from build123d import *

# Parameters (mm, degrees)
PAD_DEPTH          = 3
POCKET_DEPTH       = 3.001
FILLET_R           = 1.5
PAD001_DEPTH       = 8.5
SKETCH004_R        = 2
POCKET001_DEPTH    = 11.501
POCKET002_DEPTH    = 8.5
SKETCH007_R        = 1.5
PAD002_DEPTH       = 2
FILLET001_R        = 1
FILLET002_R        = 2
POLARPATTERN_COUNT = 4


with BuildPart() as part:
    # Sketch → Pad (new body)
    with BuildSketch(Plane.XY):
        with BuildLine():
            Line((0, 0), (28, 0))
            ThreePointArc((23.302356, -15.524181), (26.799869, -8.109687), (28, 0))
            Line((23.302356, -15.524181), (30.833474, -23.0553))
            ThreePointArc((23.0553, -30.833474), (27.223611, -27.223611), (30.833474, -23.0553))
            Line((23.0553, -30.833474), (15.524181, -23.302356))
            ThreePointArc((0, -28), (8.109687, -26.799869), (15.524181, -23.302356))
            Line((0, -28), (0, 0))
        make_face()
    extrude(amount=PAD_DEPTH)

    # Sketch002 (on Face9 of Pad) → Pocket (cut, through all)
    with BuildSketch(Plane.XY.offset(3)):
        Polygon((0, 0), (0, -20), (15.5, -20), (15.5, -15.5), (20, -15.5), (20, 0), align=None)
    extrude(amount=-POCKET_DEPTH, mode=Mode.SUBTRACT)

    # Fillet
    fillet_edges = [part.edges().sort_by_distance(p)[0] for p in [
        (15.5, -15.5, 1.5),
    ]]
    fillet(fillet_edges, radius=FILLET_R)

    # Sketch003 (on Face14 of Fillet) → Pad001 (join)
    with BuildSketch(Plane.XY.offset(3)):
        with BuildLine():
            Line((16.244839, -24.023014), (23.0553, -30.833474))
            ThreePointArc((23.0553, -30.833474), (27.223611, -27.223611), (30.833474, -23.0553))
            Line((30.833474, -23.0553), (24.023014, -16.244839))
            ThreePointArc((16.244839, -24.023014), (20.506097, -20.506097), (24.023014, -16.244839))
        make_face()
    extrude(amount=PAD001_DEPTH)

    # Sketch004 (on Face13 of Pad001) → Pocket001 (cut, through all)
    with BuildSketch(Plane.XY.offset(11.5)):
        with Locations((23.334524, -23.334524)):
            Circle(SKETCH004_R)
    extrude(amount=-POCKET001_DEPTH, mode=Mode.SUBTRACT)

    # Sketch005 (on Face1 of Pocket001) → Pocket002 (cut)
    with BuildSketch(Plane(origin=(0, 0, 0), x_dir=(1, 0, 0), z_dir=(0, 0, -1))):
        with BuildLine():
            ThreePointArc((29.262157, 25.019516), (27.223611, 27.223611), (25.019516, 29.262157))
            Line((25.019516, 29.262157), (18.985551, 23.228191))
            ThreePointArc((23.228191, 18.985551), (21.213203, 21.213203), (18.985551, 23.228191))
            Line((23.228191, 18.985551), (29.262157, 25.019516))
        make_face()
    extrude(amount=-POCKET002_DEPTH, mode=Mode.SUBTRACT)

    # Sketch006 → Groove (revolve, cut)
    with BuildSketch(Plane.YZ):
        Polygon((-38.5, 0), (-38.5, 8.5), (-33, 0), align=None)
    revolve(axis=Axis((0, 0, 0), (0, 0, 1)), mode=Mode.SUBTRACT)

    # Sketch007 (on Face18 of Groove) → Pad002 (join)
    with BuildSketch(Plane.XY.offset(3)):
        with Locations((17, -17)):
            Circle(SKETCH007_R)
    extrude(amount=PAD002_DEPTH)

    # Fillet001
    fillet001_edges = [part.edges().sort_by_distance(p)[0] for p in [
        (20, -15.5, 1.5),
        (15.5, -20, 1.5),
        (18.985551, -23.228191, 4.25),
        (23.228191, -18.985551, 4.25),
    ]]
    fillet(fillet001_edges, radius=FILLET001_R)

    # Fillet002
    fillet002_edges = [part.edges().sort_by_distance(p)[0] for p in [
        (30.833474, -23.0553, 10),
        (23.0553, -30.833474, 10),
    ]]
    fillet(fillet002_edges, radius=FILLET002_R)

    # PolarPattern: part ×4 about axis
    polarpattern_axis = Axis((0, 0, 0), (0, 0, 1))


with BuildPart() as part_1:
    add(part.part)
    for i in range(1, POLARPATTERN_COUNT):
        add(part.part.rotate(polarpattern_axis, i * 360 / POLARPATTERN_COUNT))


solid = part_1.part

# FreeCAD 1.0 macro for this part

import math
import FreeCAD as App
import Part
import Sketcher
Q = App.Units.Quantity


def edges_at(feature, points):
    """Names of the edges that pass closest to the given points."""
    edges = feature.Shape.Edges
    near = lambda p: min(range(len(edges)), key=lambda i: edges[i].distToShape(Part.Vertex(*p))[0])
    return sorted({f"Edge{near(p) + 1}" for p in points})

doc = App.newDocument("Part")
body = doc.addObject("PartDesign::Body", "Body")

# Sketch on XY plane
sketch1 = body.newObject("Sketcher::SketchObject", "Sketch")
sketch1.AttachmentSupport = (doc.getObject("XY_Plane"), [""])
sketch1.MapMode = "FlatFace"
sketch1.addGeometry([
    Part.LineSegment(App.Vector(28, 0, 0), App.Vector(0, 0, 0)),  # 0
    Part.LineSegment(App.Vector(0, 0, 0), App.Vector(0, -28, 0)),  # 1
    Part.ArcOfCircle(Part.Circle(App.Vector(0, 0, 0), App.Vector(0, 0, 1), 28), math.radians(-90), math.radians(-56)),  # 2
    Part.LineSegment(App.Vector(16, -23, 0), App.Vector(23, -31, 0)),  # 3
    Part.ArcOfCircle(Part.Circle(App.Vector(0, 0, 0), App.Vector(0, 0, 1), 38), math.radians(-53.21), math.radians(-36.79)),  # 4
    Part.LineSegment(App.Vector(31, -23, 0), App.Vector(23, -16, 0)),  # 5
    Part.ArcOfCircle(Part.Circle(App.Vector(0, 0, 0), App.Vector(0, 0, 1), 28), math.radians(-34), math.radians(0)),  # 6
], False)
sketch1.addConstraint([
    Sketcher.Constraint("Coincident", 0, 2, 1, 1),
    Sketcher.Constraint("Coincident", 1, 2, 2, 1),
    Sketcher.Constraint("Coincident", 2, 2, 3, 1),
    Sketcher.Constraint("Coincident", 3, 2, 4, 1),
    Sketcher.Constraint("Coincident", 4, 2, 5, 1),
    Sketcher.Constraint("Coincident", 5, 2, 6, 1),
    Sketcher.Constraint("Coincident", 6, 2, 0, 1),
    Sketcher.Constraint("Horizontal", 0),
    Sketcher.Constraint("Vertical", 1),
    Sketcher.Constraint("Coincident", 2, 3, -1, 1),
    Sketcher.Constraint("Coincident", 6, 3, -1, 1),
    Sketcher.Constraint("Coincident", 0, 2, -1, 1),
    Sketcher.Constraint("Equal", 2, 6),
    Sketcher.Constraint("Parallel", 3, 5),
    Sketcher.Constraint("Equal", 3, 5),
    Sketcher.Constraint("DistanceX", 0, 2, 0, 1, Q("28 mm")),
    Sketcher.Constraint("Angle", 3, Q("-44.999996 deg")),
    Sketcher.Constraint("Radius", 4, Q("38.499981 mm")),
    Sketcher.Constraint("DistanceX", -1, 1, 3, 2, Q("23.0553 mm")),
    Sketcher.Constraint("DistanceY", 4, 2, -1, 1, Q("23.0553 mm")),
    Sketcher.Constraint("Distance", 3, Q("10.65061 mm")),
])
pad1 = body.newObject("PartDesign::Pad", "Pad")
pad1.Profile = sketch1
pad1.Length = 3

# Sketch on XY plane
sketch2 = body.newObject("Sketcher::SketchObject", "Sketch001")
sketch2.AttachmentSupport = (doc.getObject("XY_Plane"), [""])
sketch2.MapMode = "FlatFace"
sketch2.AttachmentOffset = App.Placement(App.Vector(0, 0, 3), App.Rotation())
sketch2.addGeometry([
    Part.LineSegment(App.Vector(0, 0, 0), App.Vector(0, -20, 0)),  # 0
    Part.LineSegment(App.Vector(0, -20, 0), App.Vector(15.5, -20, 0)),  # 1
    Part.LineSegment(App.Vector(15.5, -20, 0), App.Vector(15.5, -15.5, 0)),  # 2
    Part.LineSegment(App.Vector(15.5, -15.5, 0), App.Vector(20, -15.5, 0)),  # 3
    Part.LineSegment(App.Vector(20, -15.5, 0), App.Vector(20, 0, 0)),  # 4
    Part.LineSegment(App.Vector(20, 0, 0), App.Vector(0, 0, 0)),  # 5
], False)
sketch2.addConstraint([
    Sketcher.Constraint("Coincident", 0, 2, 1, 1),
    Sketcher.Constraint("Coincident", 1, 2, 2, 1),
    Sketcher.Constraint("Coincident", 2, 2, 3, 1),
    Sketcher.Constraint("Coincident", 3, 2, 4, 1),
    Sketcher.Constraint("Coincident", 4, 2, 5, 1),
    Sketcher.Constraint("Coincident", 5, 2, 0, 1),
    Sketcher.Constraint("Vertical", 0),
    Sketcher.Constraint("Horizontal", 1),
    Sketcher.Constraint("Vertical", 2),
    Sketcher.Constraint("Horizontal", 3),
    Sketcher.Constraint("Vertical", 4),
    Sketcher.Constraint("Horizontal", 5),
    Sketcher.Constraint("Coincident", 5, 2, -1, 1),
    Sketcher.Constraint("Equal", 5, 0),
    Sketcher.Constraint("Equal", 3, 2),
    Sketcher.Constraint("DistanceX", 5, 2, 5, 1, Q("20 mm")),
    Sketcher.Constraint("DistanceX", 1, 1, 1, 2, Q("15.5 mm")),
])
pocket1 = body.newObject("PartDesign::Pocket", "Pocket")
pocket1.Profile = sketch2
pocket1.Type = "ThroughAll"
doc.recompute()

fillet = body.newObject("PartDesign::Fillet", "Fillet")
fillet.Base = (pocket1, edges_at(pocket1, [(15.5, -15.5, 1.5)]))
fillet.Radius = 1.5

# Sketch on XY plane
sketch3 = body.newObject("Sketcher::SketchObject", "Sketch002")
sketch3.AttachmentSupport = (doc.getObject("XY_Plane"), [""])
sketch3.MapMode = "FlatFace"
sketch3.AttachmentOffset = App.Placement(App.Vector(0, 0, 3), App.Rotation())
sketch3.addGeometry([
    Part.LineSegment(App.Vector(16, -24, 0), App.Vector(23, -31, 0)),
    Part.ArcOfCircle(Part.Circle(App.Vector(0, 0, 0), App.Vector(0, 0, 1), 38), math.radians(-53.21), math.radians(-36.79)),
    Part.LineSegment(App.Vector(31, -23, 0), App.Vector(24, -16, 0)),
    Part.ArcOfCircle(Part.Circle(App.Vector(0, 0, 0), App.Vector(0, 0, 1), 29), math.radians(-56), math.radians(-34)),
], False)
sketch3.addConstraint([
    Sketcher.Constraint("Coincident", 0, 2, 1, 1),
    Sketcher.Constraint("Coincident", 1, 2, 2, 1),
    Sketcher.Constraint("Coincident", 2, 2, 3, 2),
    Sketcher.Constraint("Coincident", 3, 1, 0, 1),
    Sketcher.Constraint("Parallel", 0, 2),
    Sketcher.Constraint("Equal", 0, 2),
    Sketcher.Constraint("Angle", 0, Q("-44.999996 deg")),
    Sketcher.Constraint("Radius", 1, Q("38.499981 mm")),
    Sketcher.Constraint("Radius", 3, Q("28.99997 mm")),
    Sketcher.Constraint("DistanceX", 1, 3, 2, 2, Q("24.023001 mm")),
    Sketcher.Constraint("DistanceY", 3, 1, 1, 3, Q("24.023001 mm")),
    Sketcher.Constraint("DistanceX", -1, 1, 0, 2, Q("23.0553 mm")),
    Sketcher.Constraint("DistanceY", 1, 2, -1, 1, Q("23.0553 mm")),
    Sketcher.Constraint("DistanceY", 2, 2, -1, 1, Q("16.244839 mm")),
])
pad2 = body.newObject("PartDesign::Pad", "Pad001")
pad2.Profile = sketch3
pad2.Length = 8.5

# Sketch on XY plane
sketch4 = body.newObject("Sketcher::SketchObject", "Sketch003")
sketch4.AttachmentSupport = (doc.getObject("XY_Plane"), [""])
sketch4.MapMode = "FlatFace"
sketch4.AttachmentOffset = App.Placement(App.Vector(0, 0, 11.5), App.Rotation())
sketch4.addGeometry(Part.Circle(App.Vector(23.3, -23.3, 0), App.Vector(0, 0, 1), 2), False)
sketch4.addConstraint([
    Sketcher.Constraint("Diameter", 0, Q("4 mm")),
    Sketcher.Constraint("DistanceX", -1, 1, 0, 3, Q("23.334524 mm")),
    Sketcher.Constraint("DistanceY", 0, 3, -1, 1, Q("23.334524 mm")),
])
pocket2 = body.newObject("PartDesign::Pocket", "Pocket001")
pocket2.Profile = sketch4
pocket2.Type = "ThroughAll"

# Sketch on XY plane
sketch5 = body.newObject("Sketcher::SketchObject", "Sketch004")
sketch5.AttachmentSupport = (doc.getObject("XY_Plane"), [""])
sketch5.MapMode = "FlatFace"
sketch5.addGeometry([
    Part.ArcOfCircle(Part.Circle(App.Vector(0, 0, 0), App.Vector(0, 0, 1), 39), math.radians(-49.47), math.radians(-40.53)),
    Part.LineSegment(App.Vector(25, -29, 0), App.Vector(19, -23, 0)),
    Part.ArcOfCircle(Part.Circle(App.Vector(0, 0, 0), App.Vector(0, 0, 1), 30), math.radians(-50.74), math.radians(-39.26)),
    Part.LineSegment(App.Vector(23, -19, 0), App.Vector(29, -25, 0)),
], False)
sketch5.addConstraint([
    Sketcher.Constraint("Coincident", 0, 1, 1, 1),
    Sketcher.Constraint("Coincident", 1, 2, 2, 1),
    Sketcher.Constraint("Coincident", 2, 2, 3, 1),
    Sketcher.Constraint("Coincident", 3, 2, 0, 2),
    Sketcher.Constraint("Parallel", 1, 3),
    Sketcher.Constraint("Equal", 1, 3),
    Sketcher.Constraint("Angle", 1, Q("134.999995 deg")),
    Sketcher.Constraint("Radius", 0, Q("38.500091 mm")),
    Sketcher.Constraint("Radius", 2, Q("30.000135 mm")),
    Sketcher.Constraint("DistanceX", -1, 1, 1, 2, Q("18.985551 mm")),
    Sketcher.Constraint("DistanceY", 1, 2, -1, 1, Q("23.228191 mm")),
    Sketcher.Constraint("DistanceX", -1, 1, 2, 2, Q("23.228191 mm")),
    Sketcher.Constraint("DistanceY", 2, 2, -1, 1, Q("18.985551 mm")),
    Sketcher.Constraint("Distance", 1, Q("8.533316 mm")),
])
pocket3 = body.newObject("PartDesign::Pocket", "Pocket002")
pocket3.Profile = sketch5
pocket3.Length = 8.5
pocket3.Reversed = True

# Sketch on YZ plane
sketch6 = body.newObject("Sketcher::SketchObject", "Sketch005")
sketch6.AttachmentSupport = (doc.getObject("YZ_Plane"), [""])
sketch6.MapMode = "FlatFace"
sketch6.addGeometry([
    Part.LineSegment(App.Vector(-38, 8, 0), App.Vector(-38, 0, 0)),
    Part.LineSegment(App.Vector(-38, 0, 0), App.Vector(-33, 0, 0)),
    Part.LineSegment(App.Vector(-33, 0, 0), App.Vector(-38, 8, 0)),
], False)
sketch6.addConstraint([
    Sketcher.Constraint("Coincident", 0, 2, 1, 1),
    Sketcher.Constraint("Coincident", 1, 2, 2, 1),
    Sketcher.Constraint("Coincident", 2, 2, 0, 1),
    Sketcher.Constraint("Vertical", 0),
    Sketcher.Constraint("Horizontal", 1),
    Sketcher.Constraint("PointOnObject", 0, 2, -1),
    Sketcher.Constraint("DistanceX", 1, 1, 1, 2, Q("5.5 mm")),
    Sketcher.Constraint("DistanceY", 0, 2, 0, 1, Q("8.5 mm")),
    Sketcher.Constraint("DistanceX", 1, 2, -1, 1, Q("33 mm")),
])
groove = body.newObject("PartDesign::Groove", "Groove")
groove.Profile = sketch6
groove.ReferenceAxis = (sketch6, ["V_Axis"])
groove.Angle = 360

# Sketch on XY plane
sketch7 = body.newObject("Sketcher::SketchObject", "Sketch006")
sketch7.AttachmentSupport = (doc.getObject("XY_Plane"), [""])
sketch7.MapMode = "FlatFace"
sketch7.AttachmentOffset = App.Placement(App.Vector(0, 0, 3), App.Rotation())
sketch7.addGeometry(Part.Circle(App.Vector(17, -17, 0), App.Vector(0, 0, 1), 1.5), False)
sketch7.addConstraint([
    Sketcher.Constraint("Diameter", 0, Q("3 mm")),
    Sketcher.Constraint("DistanceX", -1, 1, 0, 3, Q("17 mm")),
    Sketcher.Constraint("DistanceY", 0, 3, -1, 1, Q("17 mm")),
])
pad3 = body.newObject("PartDesign::Pad", "Pad002")
pad3.Profile = sketch7
pad3.Length = 2
doc.recompute()

fillet2 = body.newObject("PartDesign::Fillet", "Fillet001")
fillet2.Base = (pad3, edges_at(pad3, [
    (20, -15.5, 1.5),
    (15.5, -20, 1.5),
    (18.986, -23.228, 4.25),
    (23.228, -18.986, 4.25),
]))
fillet2.Radius = 1
doc.recompute()

fillet3 = body.newObject("PartDesign::Fillet", "Fillet002")
fillet3.Base = (fillet2, edges_at(fillet2, [(30.833, -23.055, 10), (23.055, -30.833, 10)]))
fillet3.Radius = 2
body2 = doc.addObject("PartDesign::Body", "Body001")
doc.recompute()

body2.BaseFeature = body
doc.recompute()

body3 = doc.addObject("PartDesign::Body", "Body002")
body3.BaseFeature = body
body3.Placement = App.Placement(App.Vector(0, 0, 0), App.Rotation(App.Vector(0, 0, 1), 90))
boolean = body2.newObject("PartDesign::Boolean", "Boolean")
boolean.Type = "Fuse"
boolean.addObjects([body3])
doc.recompute()

body4 = doc.addObject("PartDesign::Body", "Body003")
body4.BaseFeature = body
body4.Placement = App.Placement(App.Vector(0, 0, 0), App.Rotation(App.Vector(0, 0, 1), 180))
boolean2 = body2.newObject("PartDesign::Boolean", "Boolean001")
boolean2.Type = "Fuse"
boolean2.addObjects([body4])
doc.recompute()

body.Placement = App.Placement(App.Vector(0, 0, 0), App.Rotation(App.Vector(0, 0, 1), 270))
boolean3 = body2.newObject("PartDesign::Boolean", "Boolean002")
boolean3.Type = "Fuse"
boolean3.addObjects([body])

doc.recompute()
